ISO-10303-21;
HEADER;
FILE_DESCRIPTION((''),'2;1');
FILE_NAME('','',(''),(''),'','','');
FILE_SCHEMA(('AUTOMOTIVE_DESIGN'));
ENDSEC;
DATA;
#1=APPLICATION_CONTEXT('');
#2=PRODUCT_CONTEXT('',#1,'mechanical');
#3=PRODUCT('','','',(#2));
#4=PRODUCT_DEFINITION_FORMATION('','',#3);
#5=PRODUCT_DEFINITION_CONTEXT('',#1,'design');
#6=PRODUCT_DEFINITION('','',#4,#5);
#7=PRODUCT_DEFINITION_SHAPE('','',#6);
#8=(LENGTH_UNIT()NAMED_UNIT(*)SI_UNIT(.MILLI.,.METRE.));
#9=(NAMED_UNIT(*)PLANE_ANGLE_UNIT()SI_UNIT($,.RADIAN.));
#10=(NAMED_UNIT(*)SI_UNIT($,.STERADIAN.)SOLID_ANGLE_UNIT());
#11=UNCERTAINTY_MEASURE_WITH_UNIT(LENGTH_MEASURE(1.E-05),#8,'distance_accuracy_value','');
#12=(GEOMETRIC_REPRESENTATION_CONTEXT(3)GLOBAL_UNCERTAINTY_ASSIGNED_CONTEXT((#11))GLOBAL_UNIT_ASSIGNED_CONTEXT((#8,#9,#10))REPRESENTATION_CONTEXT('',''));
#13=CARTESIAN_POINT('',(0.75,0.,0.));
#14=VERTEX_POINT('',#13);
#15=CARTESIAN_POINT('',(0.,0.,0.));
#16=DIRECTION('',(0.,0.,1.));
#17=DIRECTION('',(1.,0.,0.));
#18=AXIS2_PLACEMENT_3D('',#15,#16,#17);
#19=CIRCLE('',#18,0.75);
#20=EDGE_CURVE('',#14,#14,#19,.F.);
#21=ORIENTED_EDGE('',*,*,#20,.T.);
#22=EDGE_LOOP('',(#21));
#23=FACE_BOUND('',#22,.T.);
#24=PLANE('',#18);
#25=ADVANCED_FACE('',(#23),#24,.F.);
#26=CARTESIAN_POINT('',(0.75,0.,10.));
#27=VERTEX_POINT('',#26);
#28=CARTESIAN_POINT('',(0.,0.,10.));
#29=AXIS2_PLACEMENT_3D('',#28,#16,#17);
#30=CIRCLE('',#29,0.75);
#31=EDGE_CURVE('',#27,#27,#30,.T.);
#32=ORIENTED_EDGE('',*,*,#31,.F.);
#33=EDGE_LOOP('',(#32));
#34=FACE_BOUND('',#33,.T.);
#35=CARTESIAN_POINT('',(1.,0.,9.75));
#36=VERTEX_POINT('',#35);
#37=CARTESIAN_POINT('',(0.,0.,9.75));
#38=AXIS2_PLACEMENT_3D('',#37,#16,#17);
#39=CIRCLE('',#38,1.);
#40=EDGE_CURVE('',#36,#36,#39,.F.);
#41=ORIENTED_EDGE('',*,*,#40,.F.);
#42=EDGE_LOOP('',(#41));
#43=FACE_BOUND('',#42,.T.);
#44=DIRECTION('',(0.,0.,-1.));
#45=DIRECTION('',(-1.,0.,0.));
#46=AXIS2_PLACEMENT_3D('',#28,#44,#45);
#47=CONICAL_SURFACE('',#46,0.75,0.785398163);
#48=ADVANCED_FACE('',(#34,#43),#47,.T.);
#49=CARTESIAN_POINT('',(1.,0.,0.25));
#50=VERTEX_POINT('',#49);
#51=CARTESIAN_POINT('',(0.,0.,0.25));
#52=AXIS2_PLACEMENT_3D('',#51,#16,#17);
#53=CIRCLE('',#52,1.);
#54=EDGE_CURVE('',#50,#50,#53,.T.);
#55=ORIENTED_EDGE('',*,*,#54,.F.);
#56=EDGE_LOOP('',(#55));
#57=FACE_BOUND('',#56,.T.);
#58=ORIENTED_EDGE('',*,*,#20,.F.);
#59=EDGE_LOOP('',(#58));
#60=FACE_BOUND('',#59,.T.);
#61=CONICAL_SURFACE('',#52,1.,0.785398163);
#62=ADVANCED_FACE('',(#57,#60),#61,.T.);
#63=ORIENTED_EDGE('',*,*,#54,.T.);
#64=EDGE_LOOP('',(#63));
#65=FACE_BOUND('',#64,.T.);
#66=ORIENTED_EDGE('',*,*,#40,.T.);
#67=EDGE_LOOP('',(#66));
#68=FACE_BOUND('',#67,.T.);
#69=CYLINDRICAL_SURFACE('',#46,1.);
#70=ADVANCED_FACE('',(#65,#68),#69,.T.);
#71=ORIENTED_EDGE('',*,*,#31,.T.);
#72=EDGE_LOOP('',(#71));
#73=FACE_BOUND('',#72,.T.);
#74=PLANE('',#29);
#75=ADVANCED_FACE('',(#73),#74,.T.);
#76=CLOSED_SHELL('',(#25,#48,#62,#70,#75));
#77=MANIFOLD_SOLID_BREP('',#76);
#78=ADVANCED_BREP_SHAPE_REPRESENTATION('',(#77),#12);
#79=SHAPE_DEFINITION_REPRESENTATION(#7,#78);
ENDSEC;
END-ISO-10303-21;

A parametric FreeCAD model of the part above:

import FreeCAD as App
import Part
import Sketcher


def edges_at(feature, points):
    """Names of the edges that pass closest to the given points."""
    edges = feature.Shape.Edges
    near = lambda p: min(range(len(edges)), key=lambda i: edges[i].distToShape(Part.Vertex(*p))[0])
    return sorted({f"Edge{near(p) + 1}" for p in points})

doc = App.newDocument("Part")
params = doc.addObject("Spreadsheet::Sheet", "Params")
for row, (alias, value) in enumerate([
    ("sketch1_diameter", "2 mm"),
    ("pad1_length", "10 mm"),
    ("chamfer_size", "0.25 mm"),
], start=1):
    params.set(f"A{row}", alias)
    params.set(f"B{row}", "=" + value)
    params.setAlias(f"B{row}", alias)

body = doc.addObject("PartDesign::Body", "Body")

sketch1 = body.newObject("Sketcher::SketchObject", "Sketch")
sketch1.AttachmentSupport = (doc.getObject("XY_Plane"), [""])
sketch1.MapMode = "FlatFace"
sketch1.addGeometry(Part.Circle(App.Vector(0, 0, 0), App.Vector(0, 0, 1), 1), False)
sketch1.addConstraint(Sketcher.Constraint("Coincident", 0, 3, -1, 1))
sketch1.addConstraint(Sketcher.Constraint("Diameter", 0, 2.0))
sketch1.setExpression("Constraints[1]", "Params.sketch1_diameter")
pad1 = body.newObject("PartDesign::Pad", "Pad")
pad1.Profile = sketch1
pad1.setExpression("Length", "Params.pad1_length")
doc.recompute()

chamfer = body.newObject("PartDesign::Chamfer", "Chamfer")
chamfer.Base = (pad1, edges_at(pad1, [(-1, 0, 0), (-1, 0, 10)]))
chamfer.setExpression("Size", "Params.chamfer_size")

doc.recompute()
